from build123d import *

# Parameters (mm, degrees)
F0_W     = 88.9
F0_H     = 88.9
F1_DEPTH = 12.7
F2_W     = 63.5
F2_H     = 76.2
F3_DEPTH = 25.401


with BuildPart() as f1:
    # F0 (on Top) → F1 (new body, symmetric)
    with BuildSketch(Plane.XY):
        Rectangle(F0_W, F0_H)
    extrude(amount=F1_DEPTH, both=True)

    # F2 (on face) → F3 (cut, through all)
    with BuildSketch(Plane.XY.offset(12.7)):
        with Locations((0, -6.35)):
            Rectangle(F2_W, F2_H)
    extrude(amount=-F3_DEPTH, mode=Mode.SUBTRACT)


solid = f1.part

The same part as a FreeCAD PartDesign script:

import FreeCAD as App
import Part
import Sketcher
from FreeCAD import Vector
Q = App.Units.Quantity


def add_polygon(sketch, points):
    """Adds a closed chain of lines whose ends are joined by coincident constraints."""
    first, n = sketch.GeometryCount, len(points)
    for a, b in zip(points, points[1:] + points[:1]):
        sketch.addGeometry(Part.LineSegment(App.Vector(*a, 0), App.Vector(*b, 0)), False)
    for i in range(n):
        sketch.addConstraint(Sketcher.Constraint("Coincident", first + i, 2, first + (i + 1) % n, 1))

doc = App.newDocument("Part")
body = doc.addObject("PartDesign::Body", "Body")

sketch1 = body.newObject("Sketcher::SketchObject", "Sketch")
sketch1.AttachmentSupport = (doc.getObject("XY_Plane"), [""])
sketch1.MapMode = "FlatFace"
add_polygon(sketch1, [(-44, 44), (-44, -44), (44, -44), (44, 44)])
sketch1.addConstraint(Sketcher.Constraint("Vertical", 0))
sketch1.addConstraint(Sketcher.Constraint("Horizontal", 1))
sketch1.addConstraint(Sketcher.Constraint("Vertical", 2))
sketch1.addConstraint(Sketcher.Constraint("Horizontal", 3))
sketch1.addConstraint(Sketcher.Constraint("Symmetric", 0, 2, 2, 2, -1, 1))
sketch1.addConstraint(Sketcher.Constraint("Equal", 3, 0))
sketch1.addConstraint(Sketcher.Constraint("DistanceX", 1, 1, 1, 2, Q("3.5 in")))
pad1 = body.newObject("PartDesign::Pad", "Pad")
pad1.Profile = sketch1
pad1.Length = Q("1 in")
pad1.Midplane = True

sketch2 = body.newObject("Sketcher::SketchObject", "Sketch001")
sketch2.AttachmentSupport = (doc.getObject("XY_Plane"), [""])
sketch2.MapMode = "FlatFace"
sketch2.AttachmentOffset = App.Placement(Vector(0, 0, 0.5 * 25.4), App.Rotation())
add_polygon(sketch2, [(-32, 32), (-32, -44), (32, -44), (32, 32)])
sketch2.addConstraint(Sketcher.Constraint("Vertical", 0))
sketch2.addConstraint(Sketcher.Constraint("Horizontal", 1))
sketch2.addConstraint(Sketcher.Constraint("Vertical", 2))
sketch2.addConstraint(Sketcher.Constraint("Horizontal", 3))
sketch2.addConstraint(Sketcher.Constraint("DistanceY", 0, 2, 0, 1, Q("3 in")))
sketch2.addConstraint(Sketcher.Constraint("DistanceX", 1, 1, 1, 2, Q("2.5 in")))
sketch2.addConstraint(Sketcher.Constraint("DistanceX", 0, 2, -1, 1, Q("1.25 in")))
sketch2.addConstraint(Sketcher.Constraint("DistanceY", 0, 2, -1, 1, Q("1.75 in")))
pocket1 = body.newObject("PartDesign::Pocket", "Pocket")
pocket1.Profile = sketch2
pocket1.Type = "ThroughAll"

doc.recompute()
